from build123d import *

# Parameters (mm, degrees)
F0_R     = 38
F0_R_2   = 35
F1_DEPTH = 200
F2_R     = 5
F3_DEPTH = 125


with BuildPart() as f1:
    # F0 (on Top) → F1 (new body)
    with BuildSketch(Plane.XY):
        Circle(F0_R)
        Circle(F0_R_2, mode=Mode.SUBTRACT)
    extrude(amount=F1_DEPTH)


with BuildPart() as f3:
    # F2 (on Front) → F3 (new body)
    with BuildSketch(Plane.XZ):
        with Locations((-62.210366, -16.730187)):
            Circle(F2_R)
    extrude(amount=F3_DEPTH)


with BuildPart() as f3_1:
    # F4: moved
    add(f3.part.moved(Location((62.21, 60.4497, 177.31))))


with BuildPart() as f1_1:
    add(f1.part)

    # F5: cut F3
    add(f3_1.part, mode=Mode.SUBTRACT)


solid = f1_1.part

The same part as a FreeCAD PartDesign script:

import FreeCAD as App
import Part
import Sketcher

doc = App.newDocument("Part")
body = doc.addObject("PartDesign::Body", "Body")

# Sketch on XY plane
sketch1 = body.newObject("Sketcher::SketchObject", "Sketch")
sketch1.AttachmentSupport = (doc.getObject("XY_Plane"), [""])
sketch1.MapMode = "FlatFace"
sketch1.addGeometry([
    Part.Circle(App.Vector(0, 0, 0), App.Vector(0, 0, 1), 38),
    Part.Circle(App.Vector(0, 0, 0), App.Vector(0, 0, 1), 35),
], False)
sketch1.addConstraint([
    Sketcher.Constraint("Coincident", 0, 3, -1, 1),
    Sketcher.Constraint("Coincident", 1, 3, -1, 1),
    Sketcher.Constraint("Diameter", 0, 76.0),
    Sketcher.Constraint("Diameter", 1, 70.0),
])
pad1 = body.newObject("PartDesign::Pad", "Pad")
pad1.Profile = sketch1
pad1.Length = 200
body2 = doc.addObject("PartDesign::Body", "Body001")

# Sketch on XZ plane
sketch2 = body2.newObject("Sketcher::SketchObject", "Sketch001")
sketch2.AttachmentSupport = (doc.getObject("XZ_Plane001"), [""])
sketch2.MapMode = "FlatFace"
sketch2.addGeometry(Part.Circle(App.Vector(-62, -17, 0), App.Vector(0, 0, 1), 5), False)
sketch2.addConstraint([
    Sketcher.Constraint("Diameter", 0, 10.0),
    Sketcher.Constraint("DistanceX", 0, 3, -1, 1, 62.210366),
    Sketcher.Constraint("DistanceY", 0, 3, -1, 1, 16.730187),
])
pad2 = body2.newObject("PartDesign::Pad", "Pad001")
pad2.Profile = sketch2
pad2.Length = 125
body3 = doc.addObject("PartDesign::Body", "Body002")
doc.recompute()

body2.Placement = App.Placement(App.Vector(62.21, 60.4497, 177.31), App.Rotation(App.Vector(0, 0, 1), 0))
boolean = body3.newObject("PartDesign::Boolean", "Boolean")
boolean.Type = "Fuse"
boolean.addObjects([body2])
doc.recompute()

boolean2 = body.newObject("PartDesign::Boolean", "Boolean001")
boolean2.Type = "Cut"
boolean2.addObjects([body3])

doc.recompute()
